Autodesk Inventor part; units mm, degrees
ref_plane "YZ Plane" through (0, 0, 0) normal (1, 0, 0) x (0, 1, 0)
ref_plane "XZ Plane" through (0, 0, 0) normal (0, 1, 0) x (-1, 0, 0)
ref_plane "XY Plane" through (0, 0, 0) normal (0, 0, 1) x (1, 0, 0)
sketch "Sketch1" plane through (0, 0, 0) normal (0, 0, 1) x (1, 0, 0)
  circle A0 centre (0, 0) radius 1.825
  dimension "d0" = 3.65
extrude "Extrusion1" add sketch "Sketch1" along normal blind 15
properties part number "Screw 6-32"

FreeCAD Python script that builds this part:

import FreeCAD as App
import Part
import Sketcher

doc = App.newDocument("Part")
body = doc.addObject("PartDesign::Body", "Body")

# Sketch on XY plane
sketch1 = doc.addObject("Sketcher::SketchObject", "Sketch")
body.addObject(sketch1)
sketch1.AttachmentSupport = (doc.XY_Plane, [""])
sketch1.MapMode = "FlatFace"
sketch1.addGeometry(Part.Circle(App.Vector(0, 0, 0), App.Vector(0, 0, 1), 1.825), False)
sketch1.addConstraint(Sketcher.Constraint("Coincident", 0, 3, -1, 1))
sketch1.addConstraint(Sketcher.Constraint("Diameter", 0, 3.65))
pad1 = doc.addObject("PartDesign::Pad", "Pad")
body.addObject(pad1)
pad1.Profile = sketch1
pad1.Length = 15

doc.recompute()
